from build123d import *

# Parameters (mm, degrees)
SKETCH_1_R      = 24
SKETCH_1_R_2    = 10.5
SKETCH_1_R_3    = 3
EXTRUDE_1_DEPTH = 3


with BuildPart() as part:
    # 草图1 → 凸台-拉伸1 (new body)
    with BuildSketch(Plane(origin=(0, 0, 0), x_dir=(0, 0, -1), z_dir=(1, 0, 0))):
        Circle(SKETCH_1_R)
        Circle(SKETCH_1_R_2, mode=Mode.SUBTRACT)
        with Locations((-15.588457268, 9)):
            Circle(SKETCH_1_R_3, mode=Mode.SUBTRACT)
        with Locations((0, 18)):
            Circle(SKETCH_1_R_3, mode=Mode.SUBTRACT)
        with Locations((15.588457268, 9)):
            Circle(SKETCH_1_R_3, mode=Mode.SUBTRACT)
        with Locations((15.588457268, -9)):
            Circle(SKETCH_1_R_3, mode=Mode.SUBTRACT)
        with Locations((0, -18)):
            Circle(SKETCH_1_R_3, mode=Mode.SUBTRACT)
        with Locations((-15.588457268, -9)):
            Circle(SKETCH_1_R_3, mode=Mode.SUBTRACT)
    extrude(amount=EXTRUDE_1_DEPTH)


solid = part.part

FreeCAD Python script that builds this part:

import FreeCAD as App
import Part
import Sketcher
Q = App.Units.Quantity

doc = App.newDocument("Part")
body = doc.addObject("PartDesign::Body", "Body")

# Sketch on YZ plane
sketch1 = doc.addObject("Sketcher::SketchObject", "Sketch")
body.addObject(sketch1)
sketch1.AttachmentSupport = (doc.YZ_Plane, [""])
sketch1.MapMode = "FlatFace"
sketch1.addGeometry(Part.Circle(App.Vector(0, 0, 0), App.Vector(0, 0, 1), 24), False)
sketch1.addGeometry(Part.Circle(App.Vector(-9, 15.6, 0), App.Vector(0, 0, 1), 3), False)
sketch1.addGeometry(Part.Circle(App.Vector(-18, 0, 0), App.Vector(0, 0, 1), 3), False)
sketch1.addGeometry(Part.Circle(App.Vector(-9, -15.6, 0), App.Vector(0, 0, 1), 3), False)
sketch1.addGeometry(Part.Circle(App.Vector(9, 15.6, 0), App.Vector(0, 0, 1), 3), False)
sketch1.addGeometry(Part.Circle(App.Vector(0, 0, 0), App.Vector(0, 0, 1), 10.5), False)
sketch1.addGeometry(Part.Circle(App.Vector(9, -15.6, 0), App.Vector(0, 0, 1), 3), False)
sketch1.addGeometry(Part.Circle(App.Vector(18, 0, 0), App.Vector(0, 0, 1), 3), False)
sketch1.addConstraint(Sketcher.Constraint("Coincident", 0, 3, -1, 1))
sketch1.addConstraint(Sketcher.Constraint("Coincident", 5, 3, -1, 1))
sketch1.addConstraint(Sketcher.Constraint("Equal", 1, 2))
sketch1.addConstraint(Sketcher.Constraint("Equal", 2, 3))
sketch1.addConstraint(Sketcher.Constraint("Equal", 3, 4))
sketch1.addConstraint(Sketcher.Constraint("Equal", 4, 6))
sketch1.addConstraint(Sketcher.Constraint("Equal", 6, 7))
sketch1.addConstraint(Sketcher.Constraint("Symmetric", 3, 3, 4, 3, -1, 1))
sketch1.addConstraint(Sketcher.Constraint("Symmetric", 1, 3, 6, 3, -1, 1))
sketch1.addConstraint(Sketcher.Constraint("Symmetric", 2, 3, 7, 3, -1, 1))
sketch1.addConstraint(Sketcher.Constraint("Symmetric", 1, 3, 4, 3, -2))
sketch1.addConstraint(Sketcher.Constraint("PointOnObject", 2, 3, -1))
sketch1.addConstraint(Sketcher.Constraint("Diameter", 0, Q("48 mm")))
sketch1.addConstraint(Sketcher.Constraint("Diameter", 1, Q("6 mm")))
sketch1.addConstraint(Sketcher.Constraint("Diameter", 5, Q("21 mm")))
sketch1.addConstraint(Sketcher.Constraint("DistanceX", 1, 3, -1, 1, Q("9 mm")))
sketch1.addConstraint(Sketcher.Constraint("DistanceX", 2, 3, -1, 1, Q("18 mm")))
sketch1.addConstraint(Sketcher.Constraint("DistanceY", -1, 1, 1, 3, Q("15.588457 mm")))
pad1 = doc.addObject("PartDesign::Pad", "Pad")
body.addObject(pad1)
pad1.Profile = sketch1
pad1.Length = 3

doc.recompute()
